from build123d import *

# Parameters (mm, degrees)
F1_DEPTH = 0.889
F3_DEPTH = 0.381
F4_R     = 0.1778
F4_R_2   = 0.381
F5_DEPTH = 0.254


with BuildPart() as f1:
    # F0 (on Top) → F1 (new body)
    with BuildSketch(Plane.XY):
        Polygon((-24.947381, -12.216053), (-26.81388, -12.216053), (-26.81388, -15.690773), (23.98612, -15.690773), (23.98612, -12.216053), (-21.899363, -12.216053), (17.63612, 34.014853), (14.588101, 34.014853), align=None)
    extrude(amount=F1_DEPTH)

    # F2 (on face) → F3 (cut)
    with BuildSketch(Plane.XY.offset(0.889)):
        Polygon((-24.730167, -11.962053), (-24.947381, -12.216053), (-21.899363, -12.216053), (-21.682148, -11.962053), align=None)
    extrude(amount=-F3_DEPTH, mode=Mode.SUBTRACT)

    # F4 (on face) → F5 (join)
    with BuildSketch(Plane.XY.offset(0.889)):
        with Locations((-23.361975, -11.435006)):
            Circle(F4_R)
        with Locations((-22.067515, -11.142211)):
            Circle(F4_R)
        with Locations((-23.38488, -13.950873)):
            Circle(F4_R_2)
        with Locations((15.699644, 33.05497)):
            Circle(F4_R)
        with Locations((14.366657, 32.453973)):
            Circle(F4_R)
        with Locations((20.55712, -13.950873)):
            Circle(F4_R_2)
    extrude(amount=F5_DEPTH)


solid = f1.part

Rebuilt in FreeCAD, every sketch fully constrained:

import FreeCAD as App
import Part
import Sketcher

V = App.Vector
Q = App.Units.Quantity


def add_polygon(sketch, points):
    """Adds a closed chain of lines whose ends are joined by coincident constraints."""
    first, n = sketch.GeometryCount, len(points)
    for a, b in zip(points, points[1:] + points[:1]):
        sketch.addGeometry(Part.LineSegment(App.Vector(*a, 0), App.Vector(*b, 0)), False)
    for i in range(n):
        sketch.addConstraint(Sketcher.Constraint("Coincident", first + i, 2, first + (i + 1) % n, 1))

doc = App.newDocument("Part")
body = doc.addObject("PartDesign::Body", "Body")

# Sketch on XY plane
sketch1 = doc.addObject("Sketcher::SketchObject", "Sketch")
body.addObject(sketch1)
sketch1.AttachmentSupport = (doc.XY_Plane, [""])
sketch1.MapMode = "FlatFace"
add_polygon(sketch1, [(-24.9, -12.2), (-26.8, -12.2), (-26.8, -15.7), (24, -15.7), (24, -12.2), (-21.9, -12.2), (17.6, 34), (14.6, 34)])  # lines 0-7
sketch1.addConstraint(Sketcher.Constraint("Horizontal", 0))
sketch1.addConstraint(Sketcher.Constraint("Vertical", 1))
sketch1.addConstraint(Sketcher.Constraint("Horizontal", 2))
sketch1.addConstraint(Sketcher.Constraint("Vertical", 3))
sketch1.addConstraint(Sketcher.Constraint("Horizontal", 4))
sketch1.addConstraint(Sketcher.Constraint("Horizontal", 6))
sketch1.addConstraint(Sketcher.Constraint("Parallel", 5, 7))
sketch1.addConstraint(Sketcher.Constraint("Horizontal", 0, 2, 3, 2))
sketch1.addConstraint(Sketcher.Constraint("DistanceX", 2, 1, 2, 2, Q("2 in")))
sketch1.addConstraint(Sketcher.Constraint("DistanceX", 5, 2, 3, 2, Q("0.25 in")))
sketch1.addConstraint(Sketcher.Constraint("DistanceY", 1, 2, 1, 1, Q("0.1368 in")))
sketch1.addConstraint(Sketcher.Constraint("DistanceX", 0, 2, 0, 1, Q("1.866499 mm")))
sketch1.addConstraint(Sketcher.Constraint("DistanceX", 6, 2, 6, 1, Q("3.048019 mm")))
sketch1.addConstraint(Sketcher.Constraint("DistanceX", -1, 1, 6, 2, Q("14.588101 mm")))
sketch1.addConstraint(Sketcher.Constraint("Distance", 5, Q("60.830511 mm")))
sketch1.addConstraint(Sketcher.Constraint("DistanceY", 0, 2, -1, 1, Q("12.216053 mm")))
pad1 = doc.addObject("PartDesign::Pad", "Pad")
body.addObject(pad1)
pad1.Profile = sketch1
pad1.Length = Q("0.035 in")

# Sketch on XY plane
sketch2 = doc.addObject("Sketcher::SketchObject", "Sketch001")
body.addObject(sketch2)
sketch2.AttachmentSupport = (doc.XY_Plane, [""])
sketch2.MapMode = "FlatFace"
sketch2.AttachmentOffset = App.Placement(V(0, 0, 0.035 * 25.4), App.Rotation())
add_polygon(sketch2, [(-24.73, -11.96), (-24.95, -12.22), (-21.9, -12.22), (-21.68, -11.96)])  # lines 0-3
sketch2.addConstraint(Sketcher.Constraint("Horizontal", 1))
sketch2.addConstraint(Sketcher.Constraint("Horizontal", 3))
sketch2.addConstraint(Sketcher.Constraint("Equal", 1, 3))
sketch2.addConstraint(Sketcher.Constraint("DistanceY", 1, 2, 2, 2, Q("0.01 in")))
sketch2.addConstraint(Sketcher.Constraint("DistanceX", 3, 2, 3, 1, Q("3.048019 mm")))
sketch2.addConstraint(Sketcher.Constraint("DistanceX", 0, 2, -1, 1, Q("24.947381 mm")))
sketch2.addConstraint(Sketcher.Constraint("DistanceX", 2, 2, -1, 1, Q("21.682148 mm")))
sketch2.addConstraint(Sketcher.Constraint("DistanceY", 0, 2, -1, 1, Q("12.216053 mm")))
pocket1 = doc.addObject("PartDesign::Pocket", "Pocket")
body.addObject(pocket1)
pocket1.Profile = sketch2
pocket1.Length = Q("0.015 in")

# Sketch on XY plane
sketch3 = doc.addObject("Sketcher::SketchObject", "Sketch002")
body.addObject(sketch3)
sketch3.AttachmentSupport = (doc.XY_Plane, [""])
sketch3.MapMode = "FlatFace"
sketch3.AttachmentOffset = App.Placement(V(0, 0, 0.035 * 25.4), App.Rotation())
sketch3.addGeometry(Part.Circle(V(-23.36, -11.44, 0), V(0, 0, 1), 0.18), False)
sketch3.addGeometry(Part.Circle(V(-22.07, -11.14, 0), V(0, 0, 1), 0.18), False)
sketch3.addGeometry(Part.Circle(V(-23.38, -13.95, 0), V(0, 0, 1), 0.38), False)
sketch3.addGeometry(Part.Circle(V(15.7, 33.05, 0), V(0, 0, 1), 0.18), False)
sketch3.addGeometry(Part.Circle(V(14.37, 32.45, 0), V(0, 0, 1), 0.18), False)
sketch3.addGeometry(Part.Circle(V(20.56, -13.95, 0), V(0, 0, 1), 0.38), False)
sketch3.addConstraint(Sketcher.Constraint("Equal", 0, 1))
sketch3.addConstraint(Sketcher.Constraint("Equal", 1, 3))
sketch3.addConstraint(Sketcher.Constraint("Equal", 3, 4))
sketch3.addConstraint(Sketcher.Constraint("Equal", 2, 5))
sketch3.addConstraint(Sketcher.Constraint("Horizontal", 2, 3, 5, 3))
sketch3.addConstraint(Sketcher.Constraint("Diameter", 2, Q("0.03 in")))
sketch3.addConstraint(Sketcher.Constraint("Diameter", 0, Q("0.014 in")))
sketch3.addConstraint(Sketcher.Constraint("DistanceX", 2, 3, 5, 3, Q("1.73 in")))
sketch3.addConstraint(Sketcher.Constraint("DistanceX", 1, 3, -1, 1, Q("0.8687998 in")))
sketch3.addConstraint(Sketcher.Constraint("DistanceY", 1, 3, -1, 1, Q("11.142211 mm")))
sketch3.addConstraint(Sketcher.Constraint("DistanceX", 2, 3, -1, 1, Q("23.38488 mm")))
sketch3.addConstraint(Sketcher.Constraint("DistanceY", -1, 1, 3, 3, Q("33.05497 mm")))
sketch3.addConstraint(Sketcher.Constraint("DistanceX", 0, 3, 1, 3, Q("1.29446 mm")))
sketch3.addConstraint(Sketcher.Constraint("DistanceY", 2, 3, 1, 3, Q("2.808662 mm")))
sketch3.addConstraint(Sketcher.Constraint("DistanceX", 1, 3, 3, 3, Q("37.767159 mm")))
sketch3.addConstraint(Sketcher.Constraint("DistanceY", 0, 3, 4, 3, Q("43.888979 mm")))
sketch3.addConstraint(Sketcher.Constraint("DistanceY", 0, 3, -1, 1, Q("11.435006 mm")))
sketch3.addConstraint(Sketcher.Constraint("DistanceX", -1, 1, 4, 3, Q("14.366657 mm")))
pad2 = doc.addObject("PartDesign::Pad", "Pad001")
body.addObject(pad2)
pad2.Profile = sketch3
pad2.Length = Q("0.01 in")

doc.recompute()
